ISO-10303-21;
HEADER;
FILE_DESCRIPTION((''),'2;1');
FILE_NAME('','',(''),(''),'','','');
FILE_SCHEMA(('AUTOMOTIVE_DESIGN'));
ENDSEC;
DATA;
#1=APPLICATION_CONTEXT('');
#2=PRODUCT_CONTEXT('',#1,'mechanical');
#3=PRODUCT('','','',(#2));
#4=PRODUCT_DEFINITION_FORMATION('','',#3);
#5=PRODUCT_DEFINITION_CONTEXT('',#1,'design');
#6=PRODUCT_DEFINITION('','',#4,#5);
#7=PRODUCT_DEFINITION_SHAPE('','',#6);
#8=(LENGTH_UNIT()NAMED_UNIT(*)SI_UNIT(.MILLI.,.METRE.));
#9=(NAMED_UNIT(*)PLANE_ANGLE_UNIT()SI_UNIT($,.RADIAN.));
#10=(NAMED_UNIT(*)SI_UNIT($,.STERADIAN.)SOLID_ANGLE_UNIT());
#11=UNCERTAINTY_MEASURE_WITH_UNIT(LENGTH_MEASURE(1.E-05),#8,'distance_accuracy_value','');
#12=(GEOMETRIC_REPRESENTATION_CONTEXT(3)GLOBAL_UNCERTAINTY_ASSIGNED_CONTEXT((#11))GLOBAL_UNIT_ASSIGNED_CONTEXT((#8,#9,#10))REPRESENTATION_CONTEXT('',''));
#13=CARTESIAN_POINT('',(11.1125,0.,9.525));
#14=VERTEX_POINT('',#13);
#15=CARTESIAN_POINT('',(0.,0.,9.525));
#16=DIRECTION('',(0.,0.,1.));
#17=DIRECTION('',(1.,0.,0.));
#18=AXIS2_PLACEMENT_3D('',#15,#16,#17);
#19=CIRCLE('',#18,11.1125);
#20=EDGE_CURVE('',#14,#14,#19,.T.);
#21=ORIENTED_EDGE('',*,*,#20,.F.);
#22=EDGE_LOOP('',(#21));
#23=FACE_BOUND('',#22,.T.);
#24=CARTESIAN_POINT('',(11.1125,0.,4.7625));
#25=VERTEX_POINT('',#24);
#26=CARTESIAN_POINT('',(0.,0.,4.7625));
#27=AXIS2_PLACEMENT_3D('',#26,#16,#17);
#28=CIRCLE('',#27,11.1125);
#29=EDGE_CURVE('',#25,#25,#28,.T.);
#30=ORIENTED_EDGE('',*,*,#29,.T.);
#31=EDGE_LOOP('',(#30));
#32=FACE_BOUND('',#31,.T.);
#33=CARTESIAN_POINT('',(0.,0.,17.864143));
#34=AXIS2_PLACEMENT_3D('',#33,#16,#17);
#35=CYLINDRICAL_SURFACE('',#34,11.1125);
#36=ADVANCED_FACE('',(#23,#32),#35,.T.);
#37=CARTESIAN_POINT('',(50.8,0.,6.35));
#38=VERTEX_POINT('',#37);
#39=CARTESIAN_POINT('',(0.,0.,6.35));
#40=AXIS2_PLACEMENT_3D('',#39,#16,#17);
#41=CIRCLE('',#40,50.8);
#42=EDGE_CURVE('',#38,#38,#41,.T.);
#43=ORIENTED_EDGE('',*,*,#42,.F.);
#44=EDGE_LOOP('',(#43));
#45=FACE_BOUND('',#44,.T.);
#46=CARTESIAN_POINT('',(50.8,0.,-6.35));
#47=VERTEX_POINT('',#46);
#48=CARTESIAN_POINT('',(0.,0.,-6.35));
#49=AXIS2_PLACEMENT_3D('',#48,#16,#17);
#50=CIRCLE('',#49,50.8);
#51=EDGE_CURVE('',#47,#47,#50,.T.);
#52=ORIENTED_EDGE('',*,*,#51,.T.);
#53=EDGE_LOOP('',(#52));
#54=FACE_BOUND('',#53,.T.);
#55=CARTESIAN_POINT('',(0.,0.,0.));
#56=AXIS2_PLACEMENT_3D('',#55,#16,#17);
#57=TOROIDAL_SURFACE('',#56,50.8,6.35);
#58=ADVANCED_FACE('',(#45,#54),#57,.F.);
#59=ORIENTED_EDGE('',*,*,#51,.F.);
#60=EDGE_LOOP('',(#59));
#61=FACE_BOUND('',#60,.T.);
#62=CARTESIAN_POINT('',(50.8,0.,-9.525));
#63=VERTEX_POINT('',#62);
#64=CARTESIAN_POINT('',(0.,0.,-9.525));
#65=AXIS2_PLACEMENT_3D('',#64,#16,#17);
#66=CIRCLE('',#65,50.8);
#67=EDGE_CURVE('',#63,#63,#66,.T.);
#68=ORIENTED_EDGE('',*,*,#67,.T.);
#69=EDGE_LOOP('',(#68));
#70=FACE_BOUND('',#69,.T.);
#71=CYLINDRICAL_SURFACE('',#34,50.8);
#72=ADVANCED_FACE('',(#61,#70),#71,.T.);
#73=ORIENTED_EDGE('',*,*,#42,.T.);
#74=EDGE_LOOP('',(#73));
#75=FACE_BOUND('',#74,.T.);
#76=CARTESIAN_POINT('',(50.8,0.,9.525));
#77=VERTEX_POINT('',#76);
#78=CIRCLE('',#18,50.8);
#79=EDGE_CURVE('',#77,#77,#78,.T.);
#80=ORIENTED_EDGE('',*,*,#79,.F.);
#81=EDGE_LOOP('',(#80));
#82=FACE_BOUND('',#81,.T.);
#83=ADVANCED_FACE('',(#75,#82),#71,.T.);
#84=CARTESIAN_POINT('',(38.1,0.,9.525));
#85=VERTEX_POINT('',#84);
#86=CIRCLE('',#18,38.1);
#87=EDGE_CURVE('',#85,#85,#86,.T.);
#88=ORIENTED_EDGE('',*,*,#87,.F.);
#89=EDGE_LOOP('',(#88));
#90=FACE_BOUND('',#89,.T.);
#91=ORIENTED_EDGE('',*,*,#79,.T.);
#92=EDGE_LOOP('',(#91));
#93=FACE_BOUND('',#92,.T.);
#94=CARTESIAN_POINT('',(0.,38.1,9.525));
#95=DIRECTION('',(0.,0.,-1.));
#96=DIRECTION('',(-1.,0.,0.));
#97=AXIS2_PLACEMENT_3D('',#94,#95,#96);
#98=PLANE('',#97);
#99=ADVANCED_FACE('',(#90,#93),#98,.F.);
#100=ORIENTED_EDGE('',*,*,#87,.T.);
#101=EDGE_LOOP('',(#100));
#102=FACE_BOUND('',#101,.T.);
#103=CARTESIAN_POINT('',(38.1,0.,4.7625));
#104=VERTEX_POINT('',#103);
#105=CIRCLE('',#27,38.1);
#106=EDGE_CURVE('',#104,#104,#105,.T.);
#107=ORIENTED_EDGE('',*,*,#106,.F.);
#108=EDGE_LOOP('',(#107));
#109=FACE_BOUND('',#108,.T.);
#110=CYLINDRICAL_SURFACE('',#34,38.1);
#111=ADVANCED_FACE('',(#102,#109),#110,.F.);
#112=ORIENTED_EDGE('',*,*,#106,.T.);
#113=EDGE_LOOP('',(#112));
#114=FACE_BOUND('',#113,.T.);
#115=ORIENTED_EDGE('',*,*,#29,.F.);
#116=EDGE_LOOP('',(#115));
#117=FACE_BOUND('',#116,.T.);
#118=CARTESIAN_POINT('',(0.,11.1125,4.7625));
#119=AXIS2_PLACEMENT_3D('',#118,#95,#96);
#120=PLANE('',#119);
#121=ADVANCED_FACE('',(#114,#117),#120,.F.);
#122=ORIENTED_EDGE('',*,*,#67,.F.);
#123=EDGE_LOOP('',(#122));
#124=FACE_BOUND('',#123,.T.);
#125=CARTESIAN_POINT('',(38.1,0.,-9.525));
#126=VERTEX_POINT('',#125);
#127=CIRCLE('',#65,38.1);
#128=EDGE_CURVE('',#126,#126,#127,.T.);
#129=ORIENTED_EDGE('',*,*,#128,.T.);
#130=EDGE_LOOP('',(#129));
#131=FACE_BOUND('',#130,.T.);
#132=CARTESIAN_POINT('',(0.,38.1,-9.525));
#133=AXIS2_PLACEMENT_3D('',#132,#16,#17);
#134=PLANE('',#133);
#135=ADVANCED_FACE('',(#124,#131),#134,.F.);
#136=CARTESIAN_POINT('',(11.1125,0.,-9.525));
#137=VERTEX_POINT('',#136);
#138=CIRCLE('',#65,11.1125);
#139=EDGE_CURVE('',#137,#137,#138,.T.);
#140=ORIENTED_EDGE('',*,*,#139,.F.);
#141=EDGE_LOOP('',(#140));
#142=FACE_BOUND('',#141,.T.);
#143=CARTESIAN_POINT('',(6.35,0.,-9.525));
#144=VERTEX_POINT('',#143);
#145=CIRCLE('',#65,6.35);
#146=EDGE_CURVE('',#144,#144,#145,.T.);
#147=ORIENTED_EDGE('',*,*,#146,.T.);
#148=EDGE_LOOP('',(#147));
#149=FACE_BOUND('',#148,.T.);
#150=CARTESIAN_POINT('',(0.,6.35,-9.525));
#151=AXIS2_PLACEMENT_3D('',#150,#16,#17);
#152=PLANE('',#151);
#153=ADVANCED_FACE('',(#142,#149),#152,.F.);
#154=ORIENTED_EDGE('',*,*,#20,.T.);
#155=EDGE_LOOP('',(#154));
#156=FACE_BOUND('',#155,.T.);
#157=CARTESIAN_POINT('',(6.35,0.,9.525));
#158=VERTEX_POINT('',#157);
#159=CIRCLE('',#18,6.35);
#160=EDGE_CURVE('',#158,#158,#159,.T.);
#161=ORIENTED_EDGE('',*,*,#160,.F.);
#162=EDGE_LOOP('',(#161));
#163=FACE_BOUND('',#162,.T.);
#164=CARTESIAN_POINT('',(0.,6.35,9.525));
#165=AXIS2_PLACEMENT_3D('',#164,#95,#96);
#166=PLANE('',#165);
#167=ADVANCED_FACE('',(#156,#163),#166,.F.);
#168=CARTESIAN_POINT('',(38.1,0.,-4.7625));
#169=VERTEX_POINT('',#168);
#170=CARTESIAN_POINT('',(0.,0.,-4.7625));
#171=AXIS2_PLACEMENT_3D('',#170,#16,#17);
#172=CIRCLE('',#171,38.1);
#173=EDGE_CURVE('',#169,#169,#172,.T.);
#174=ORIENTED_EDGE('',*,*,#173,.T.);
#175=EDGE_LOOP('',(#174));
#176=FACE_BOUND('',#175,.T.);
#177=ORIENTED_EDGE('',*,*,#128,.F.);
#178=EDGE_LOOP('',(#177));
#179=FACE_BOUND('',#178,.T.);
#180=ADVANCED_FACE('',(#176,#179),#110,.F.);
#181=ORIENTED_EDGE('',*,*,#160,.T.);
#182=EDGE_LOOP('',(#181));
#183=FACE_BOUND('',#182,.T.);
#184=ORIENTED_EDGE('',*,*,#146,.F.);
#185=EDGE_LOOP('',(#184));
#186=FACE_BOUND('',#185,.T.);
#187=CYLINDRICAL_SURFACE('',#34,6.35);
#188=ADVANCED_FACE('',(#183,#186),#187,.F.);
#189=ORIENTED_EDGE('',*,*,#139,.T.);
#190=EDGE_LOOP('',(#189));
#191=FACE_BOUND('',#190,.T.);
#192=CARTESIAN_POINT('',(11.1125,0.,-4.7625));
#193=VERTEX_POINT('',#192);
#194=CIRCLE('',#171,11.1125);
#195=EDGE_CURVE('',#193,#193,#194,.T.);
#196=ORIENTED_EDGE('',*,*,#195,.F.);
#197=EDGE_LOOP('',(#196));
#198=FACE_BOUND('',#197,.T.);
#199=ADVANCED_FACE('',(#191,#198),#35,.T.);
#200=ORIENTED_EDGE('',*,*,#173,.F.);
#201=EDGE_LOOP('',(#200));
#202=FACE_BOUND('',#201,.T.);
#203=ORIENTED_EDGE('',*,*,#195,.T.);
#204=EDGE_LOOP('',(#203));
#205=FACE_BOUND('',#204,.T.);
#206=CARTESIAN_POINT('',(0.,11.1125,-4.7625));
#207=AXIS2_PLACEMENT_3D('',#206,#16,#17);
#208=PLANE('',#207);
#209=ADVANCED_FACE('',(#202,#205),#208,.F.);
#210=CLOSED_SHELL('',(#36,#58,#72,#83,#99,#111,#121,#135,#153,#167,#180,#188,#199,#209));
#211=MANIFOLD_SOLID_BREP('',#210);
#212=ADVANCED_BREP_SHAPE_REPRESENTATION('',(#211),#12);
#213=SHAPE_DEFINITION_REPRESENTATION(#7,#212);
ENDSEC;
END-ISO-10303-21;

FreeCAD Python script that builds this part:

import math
import FreeCAD as App
import Part
import Sketcher
from FreeCAD import Vector
Q = App.Units.Quantity

doc = App.newDocument("Part")
body = doc.addObject("PartDesign::Body", "Body")

sketch1 = body.newObject("Sketcher::SketchObject", "Sketch")
sketch1.AttachmentSupport = (doc.getObject("YZ_Plane"), [""])
sketch1.MapMode = "FlatFace"
sketch1.addGeometry([
    Part.LineSegment(Vector(6.3, 9.5, 0), Vector(6.3, -9.5, 0)),
    Part.LineSegment(Vector(6.3, -9.5, 0), Vector(11.1, -9.5, 0)),
    Part.LineSegment(Vector(11.1, -9.5, 0), Vector(11.1, -4.8, 0)),
    Part.LineSegment(Vector(11.1, -4.8, 0), Vector(38.1, -4.8, 0)),
    Part.LineSegment(Vector(38.1, -4.8, 0), Vector(38.1, -9.5, 0)),
    Part.LineSegment(Vector(38.1, -9.5, 0), Vector(50.8, -9.5, 0)),
    Part.LineSegment(Vector(50.8, -9.5, 0), Vector(50.8, -6.3, 0)),
    Part.ArcOfCircle(Part.Circle(Vector(50.8, 0, 0), Vector(0, 0, 1), 6.3), math.radians(90), math.radians(270)),
    Part.LineSegment(Vector(50.8, 6.3, 0), Vector(50.8, 9.5, 0)),
    Part.LineSegment(Vector(50.8, 9.5, 0), Vector(38.1, 9.5, 0)),
    Part.LineSegment(Vector(38.1, 9.5, 0), Vector(38.1, 4.8, 0)),
    Part.LineSegment(Vector(38.1, 4.8, 0), Vector(11.1, 4.8, 0)),
    Part.LineSegment(Vector(11.1, 4.8, 0), Vector(11.1, 9.5, 0)),
    Part.LineSegment(Vector(11.1, 9.5, 0), Vector(6.3, 9.5, 0)),
], False)
sketch1.addConstraint([
    Sketcher.Constraint("Coincident", 0, 2, 1, 1),
    Sketcher.Constraint("Coincident", 1, 2, 2, 1),
    Sketcher.Constraint("Coincident", 2, 2, 3, 1),
    Sketcher.Constraint("Coincident", 3, 2, 4, 1),
    Sketcher.Constraint("Coincident", 4, 2, 5, 1),
    Sketcher.Constraint("Coincident", 5, 2, 6, 1),
    Sketcher.Constraint("Coincident", 6, 2, 7, 2),
    Sketcher.Constraint("Coincident", 7, 1, 8, 1),
    Sketcher.Constraint("Coincident", 8, 2, 9, 1),
    Sketcher.Constraint("Coincident", 9, 2, 10, 1),
    Sketcher.Constraint("Coincident", 10, 2, 11, 1),
    Sketcher.Constraint("Coincident", 11, 2, 12, 1),
    Sketcher.Constraint("Coincident", 12, 2, 13, 1),
    Sketcher.Constraint("Coincident", 13, 2, 0, 1),
    Sketcher.Constraint("Vertical", 0),
    Sketcher.Constraint("Horizontal", 1),
    Sketcher.Constraint("Vertical", 2),
    Sketcher.Constraint("Horizontal", 3),
    Sketcher.Constraint("Vertical", 4),
    Sketcher.Constraint("Horizontal", 5),
    Sketcher.Constraint("Vertical", 6),
    Sketcher.Constraint("Vertical", 8),
    Sketcher.Constraint("Horizontal", 9),
    Sketcher.Constraint("Vertical", 10),
    Sketcher.Constraint("Horizontal", 11),
    Sketcher.Constraint("Vertical", 12),
    Sketcher.Constraint("Horizontal", 13),
    Sketcher.Constraint("Symmetric", 6, 2, 7, 1, -1),
    Sketcher.Constraint("Symmetric", 4, 2, 9, 2, -1),
    Sketcher.Constraint("Symmetric", 2, 2, 11, 2, -1),
    Sketcher.Constraint("Horizontal", 1, 2, 4, 2),
    Sketcher.Constraint("Horizontal", 9, 2, 12, 2),
    Sketcher.Constraint("Vertical", 7, 3, 5, 2),
    Sketcher.Constraint("Equal", 13, 2),
    Sketcher.Constraint("Radius", 7, Q("0.25 in")),
    Sketcher.Constraint("DistanceX", 5, 1, 5, 2, Q("0.5 in")),
    Sketcher.Constraint("DistanceX", -1, 1, 7, 3, Q("2 in")),
    Sketcher.Constraint("DistanceY", 0, 2, 0, 1, Q("0.75 in")),
    Sketcher.Constraint("DistanceX", 1, 1, 1, 2, Q("0.1875 in")),
    Sketcher.Constraint("DistanceX", 3, 1, 3, 2, Q("1.0625 in")),
])
revolution = body.newObject("PartDesign::Revolution", "Revolution")
revolution.Profile = sketch1
revolution.ReferenceAxis = (sketch1, ["V_Axis"])
revolution.Angle = 360

doc.recompute()
